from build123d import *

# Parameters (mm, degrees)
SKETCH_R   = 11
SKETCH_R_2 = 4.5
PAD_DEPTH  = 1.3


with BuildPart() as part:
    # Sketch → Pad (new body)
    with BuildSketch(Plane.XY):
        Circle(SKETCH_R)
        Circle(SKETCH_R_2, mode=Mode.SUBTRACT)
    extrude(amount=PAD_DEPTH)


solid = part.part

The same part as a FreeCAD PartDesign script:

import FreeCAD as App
import Part
import Sketcher
from FreeCAD import Vector
Q = App.Units.Quantity

doc = App.newDocument("Part")
body = doc.addObject("PartDesign::Body", "Body")

# Sketch on XY plane
sketch1 = body.newObject("Sketcher::SketchObject", "Sketch")
sketch1.AttachmentSupport = (doc.getObject("XY_Plane"), [""])
sketch1.MapMode = "FlatFace"
sketch1.addGeometry(Part.Circle(Vector(0, 0, 0), Vector(0, 0, 1), 11), False)
sketch1.addGeometry(Part.Circle(Vector(0, 0, 0), Vector(0, 0, 1), 4.5), False)
sketch1.addConstraint(Sketcher.Constraint("Coincident", 0, 3, -1, 1))
sketch1.addConstraint(Sketcher.Constraint("Coincident", 1, 3, -1, 1))
sketch1.addConstraint(Sketcher.Constraint("Diameter", 0, Q("22 mm")))
sketch1.addConstraint(Sketcher.Constraint("Diameter", 1, Q("9 mm")))
pad1 = body.newObject("PartDesign::Pad", "Pad")
pad1.Profile = sketch1
pad1.Length = 1.3

doc.recompute()
